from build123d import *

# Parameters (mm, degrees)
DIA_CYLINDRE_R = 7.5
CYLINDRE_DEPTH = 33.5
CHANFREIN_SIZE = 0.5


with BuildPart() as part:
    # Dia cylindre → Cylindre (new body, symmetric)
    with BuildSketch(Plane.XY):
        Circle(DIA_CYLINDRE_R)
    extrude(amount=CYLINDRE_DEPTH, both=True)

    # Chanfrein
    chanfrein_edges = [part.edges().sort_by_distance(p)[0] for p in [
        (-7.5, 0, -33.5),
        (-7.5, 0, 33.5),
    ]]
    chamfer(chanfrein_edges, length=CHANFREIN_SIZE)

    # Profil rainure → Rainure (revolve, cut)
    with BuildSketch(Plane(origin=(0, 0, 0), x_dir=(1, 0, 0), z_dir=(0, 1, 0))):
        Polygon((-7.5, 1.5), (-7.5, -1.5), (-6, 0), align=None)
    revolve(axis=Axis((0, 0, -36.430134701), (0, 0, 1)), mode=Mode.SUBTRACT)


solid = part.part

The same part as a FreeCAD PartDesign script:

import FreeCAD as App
import Part
import Sketcher
from FreeCAD import Vector
Q = App.Units.Quantity


def edges_at(feature, points):
    """Names of the edges that pass closest to the given points."""
    edges = feature.Shape.Edges
    near = lambda p: min(range(len(edges)), key=lambda i: edges[i].distToShape(Part.Vertex(*p))[0])
    return sorted({f"Edge{near(p) + 1}" for p in points})

doc = App.newDocument("Part")
body = doc.addObject("PartDesign::Body", "Body")

# Sketch on XY plane
sketch1 = body.newObject("Sketcher::SketchObject", "Sketch")
sketch1.AttachmentSupport = (doc.getObject("XY_Plane"), [""])
sketch1.MapMode = "FlatFace"
sketch1.addGeometry(Part.Circle(Vector(0, 0, 0), Vector(0, 0, 1), 8), False)
sketch1.addConstraint([
    Sketcher.Constraint("Coincident", 0, 3, -1, 1),
    Sketcher.Constraint("Diameter", 0, Q("15 mm")),
])
pad1 = body.newObject("PartDesign::Pad", "Pad")
pad1.Profile = sketch1
pad1.Length = 67
pad1.Midplane = True
doc.recompute()

chamfer = body.newObject("PartDesign::Chamfer", "Chamfer")
chamfer.Base = (pad1, edges_at(pad1, [(-7.5, 0, -33.5), (-7.5, 0, 33.5)]))
chamfer.Size = 0.5

# Sketch on XZ plane
sketch2 = body.newObject("Sketcher::SketchObject", "Sketch001")
sketch2.AttachmentSupport = (doc.getObject("XZ_Plane"), [""])
sketch2.MapMode = "FlatFace"
sketch2.addGeometry([
    Part.LineSegment(Vector(-7.5, -1.5, 0), Vector(-7.5, 1.5, 0)),
    Part.LineSegment(Vector(-7.5, 1.5, 0), Vector(-6, 0, 0)),
    Part.LineSegment(Vector(-6, 0, 0), Vector(-7.5, -1.5, 0)),
], False)
sketch2.addConstraint([
    Sketcher.Constraint("Coincident", 0, 2, 1, 1),
    Sketcher.Constraint("Coincident", 1, 2, 2, 1),
    Sketcher.Constraint("Coincident", 2, 2, 0, 1),
    Sketcher.Constraint("Vertical", 0),
    Sketcher.Constraint("PointOnObject", 1, 2, -1),
    Sketcher.Constraint("Perpendicular", 1, 2),
    Sketcher.Constraint("Equal", 1, 2),
    Sketcher.Constraint("DistanceY", 0, 1, 0, 2, Q("3 mm")),
    Sketcher.Constraint("DistanceX", 1, 2, -1, 1, Q("6 mm")),
])
groove = body.newObject("PartDesign::Groove", "Groove")
groove.Profile = sketch2
groove.ReferenceAxis = (sketch2, ["V_Axis"])
groove.Angle = 360

doc.recompute()
